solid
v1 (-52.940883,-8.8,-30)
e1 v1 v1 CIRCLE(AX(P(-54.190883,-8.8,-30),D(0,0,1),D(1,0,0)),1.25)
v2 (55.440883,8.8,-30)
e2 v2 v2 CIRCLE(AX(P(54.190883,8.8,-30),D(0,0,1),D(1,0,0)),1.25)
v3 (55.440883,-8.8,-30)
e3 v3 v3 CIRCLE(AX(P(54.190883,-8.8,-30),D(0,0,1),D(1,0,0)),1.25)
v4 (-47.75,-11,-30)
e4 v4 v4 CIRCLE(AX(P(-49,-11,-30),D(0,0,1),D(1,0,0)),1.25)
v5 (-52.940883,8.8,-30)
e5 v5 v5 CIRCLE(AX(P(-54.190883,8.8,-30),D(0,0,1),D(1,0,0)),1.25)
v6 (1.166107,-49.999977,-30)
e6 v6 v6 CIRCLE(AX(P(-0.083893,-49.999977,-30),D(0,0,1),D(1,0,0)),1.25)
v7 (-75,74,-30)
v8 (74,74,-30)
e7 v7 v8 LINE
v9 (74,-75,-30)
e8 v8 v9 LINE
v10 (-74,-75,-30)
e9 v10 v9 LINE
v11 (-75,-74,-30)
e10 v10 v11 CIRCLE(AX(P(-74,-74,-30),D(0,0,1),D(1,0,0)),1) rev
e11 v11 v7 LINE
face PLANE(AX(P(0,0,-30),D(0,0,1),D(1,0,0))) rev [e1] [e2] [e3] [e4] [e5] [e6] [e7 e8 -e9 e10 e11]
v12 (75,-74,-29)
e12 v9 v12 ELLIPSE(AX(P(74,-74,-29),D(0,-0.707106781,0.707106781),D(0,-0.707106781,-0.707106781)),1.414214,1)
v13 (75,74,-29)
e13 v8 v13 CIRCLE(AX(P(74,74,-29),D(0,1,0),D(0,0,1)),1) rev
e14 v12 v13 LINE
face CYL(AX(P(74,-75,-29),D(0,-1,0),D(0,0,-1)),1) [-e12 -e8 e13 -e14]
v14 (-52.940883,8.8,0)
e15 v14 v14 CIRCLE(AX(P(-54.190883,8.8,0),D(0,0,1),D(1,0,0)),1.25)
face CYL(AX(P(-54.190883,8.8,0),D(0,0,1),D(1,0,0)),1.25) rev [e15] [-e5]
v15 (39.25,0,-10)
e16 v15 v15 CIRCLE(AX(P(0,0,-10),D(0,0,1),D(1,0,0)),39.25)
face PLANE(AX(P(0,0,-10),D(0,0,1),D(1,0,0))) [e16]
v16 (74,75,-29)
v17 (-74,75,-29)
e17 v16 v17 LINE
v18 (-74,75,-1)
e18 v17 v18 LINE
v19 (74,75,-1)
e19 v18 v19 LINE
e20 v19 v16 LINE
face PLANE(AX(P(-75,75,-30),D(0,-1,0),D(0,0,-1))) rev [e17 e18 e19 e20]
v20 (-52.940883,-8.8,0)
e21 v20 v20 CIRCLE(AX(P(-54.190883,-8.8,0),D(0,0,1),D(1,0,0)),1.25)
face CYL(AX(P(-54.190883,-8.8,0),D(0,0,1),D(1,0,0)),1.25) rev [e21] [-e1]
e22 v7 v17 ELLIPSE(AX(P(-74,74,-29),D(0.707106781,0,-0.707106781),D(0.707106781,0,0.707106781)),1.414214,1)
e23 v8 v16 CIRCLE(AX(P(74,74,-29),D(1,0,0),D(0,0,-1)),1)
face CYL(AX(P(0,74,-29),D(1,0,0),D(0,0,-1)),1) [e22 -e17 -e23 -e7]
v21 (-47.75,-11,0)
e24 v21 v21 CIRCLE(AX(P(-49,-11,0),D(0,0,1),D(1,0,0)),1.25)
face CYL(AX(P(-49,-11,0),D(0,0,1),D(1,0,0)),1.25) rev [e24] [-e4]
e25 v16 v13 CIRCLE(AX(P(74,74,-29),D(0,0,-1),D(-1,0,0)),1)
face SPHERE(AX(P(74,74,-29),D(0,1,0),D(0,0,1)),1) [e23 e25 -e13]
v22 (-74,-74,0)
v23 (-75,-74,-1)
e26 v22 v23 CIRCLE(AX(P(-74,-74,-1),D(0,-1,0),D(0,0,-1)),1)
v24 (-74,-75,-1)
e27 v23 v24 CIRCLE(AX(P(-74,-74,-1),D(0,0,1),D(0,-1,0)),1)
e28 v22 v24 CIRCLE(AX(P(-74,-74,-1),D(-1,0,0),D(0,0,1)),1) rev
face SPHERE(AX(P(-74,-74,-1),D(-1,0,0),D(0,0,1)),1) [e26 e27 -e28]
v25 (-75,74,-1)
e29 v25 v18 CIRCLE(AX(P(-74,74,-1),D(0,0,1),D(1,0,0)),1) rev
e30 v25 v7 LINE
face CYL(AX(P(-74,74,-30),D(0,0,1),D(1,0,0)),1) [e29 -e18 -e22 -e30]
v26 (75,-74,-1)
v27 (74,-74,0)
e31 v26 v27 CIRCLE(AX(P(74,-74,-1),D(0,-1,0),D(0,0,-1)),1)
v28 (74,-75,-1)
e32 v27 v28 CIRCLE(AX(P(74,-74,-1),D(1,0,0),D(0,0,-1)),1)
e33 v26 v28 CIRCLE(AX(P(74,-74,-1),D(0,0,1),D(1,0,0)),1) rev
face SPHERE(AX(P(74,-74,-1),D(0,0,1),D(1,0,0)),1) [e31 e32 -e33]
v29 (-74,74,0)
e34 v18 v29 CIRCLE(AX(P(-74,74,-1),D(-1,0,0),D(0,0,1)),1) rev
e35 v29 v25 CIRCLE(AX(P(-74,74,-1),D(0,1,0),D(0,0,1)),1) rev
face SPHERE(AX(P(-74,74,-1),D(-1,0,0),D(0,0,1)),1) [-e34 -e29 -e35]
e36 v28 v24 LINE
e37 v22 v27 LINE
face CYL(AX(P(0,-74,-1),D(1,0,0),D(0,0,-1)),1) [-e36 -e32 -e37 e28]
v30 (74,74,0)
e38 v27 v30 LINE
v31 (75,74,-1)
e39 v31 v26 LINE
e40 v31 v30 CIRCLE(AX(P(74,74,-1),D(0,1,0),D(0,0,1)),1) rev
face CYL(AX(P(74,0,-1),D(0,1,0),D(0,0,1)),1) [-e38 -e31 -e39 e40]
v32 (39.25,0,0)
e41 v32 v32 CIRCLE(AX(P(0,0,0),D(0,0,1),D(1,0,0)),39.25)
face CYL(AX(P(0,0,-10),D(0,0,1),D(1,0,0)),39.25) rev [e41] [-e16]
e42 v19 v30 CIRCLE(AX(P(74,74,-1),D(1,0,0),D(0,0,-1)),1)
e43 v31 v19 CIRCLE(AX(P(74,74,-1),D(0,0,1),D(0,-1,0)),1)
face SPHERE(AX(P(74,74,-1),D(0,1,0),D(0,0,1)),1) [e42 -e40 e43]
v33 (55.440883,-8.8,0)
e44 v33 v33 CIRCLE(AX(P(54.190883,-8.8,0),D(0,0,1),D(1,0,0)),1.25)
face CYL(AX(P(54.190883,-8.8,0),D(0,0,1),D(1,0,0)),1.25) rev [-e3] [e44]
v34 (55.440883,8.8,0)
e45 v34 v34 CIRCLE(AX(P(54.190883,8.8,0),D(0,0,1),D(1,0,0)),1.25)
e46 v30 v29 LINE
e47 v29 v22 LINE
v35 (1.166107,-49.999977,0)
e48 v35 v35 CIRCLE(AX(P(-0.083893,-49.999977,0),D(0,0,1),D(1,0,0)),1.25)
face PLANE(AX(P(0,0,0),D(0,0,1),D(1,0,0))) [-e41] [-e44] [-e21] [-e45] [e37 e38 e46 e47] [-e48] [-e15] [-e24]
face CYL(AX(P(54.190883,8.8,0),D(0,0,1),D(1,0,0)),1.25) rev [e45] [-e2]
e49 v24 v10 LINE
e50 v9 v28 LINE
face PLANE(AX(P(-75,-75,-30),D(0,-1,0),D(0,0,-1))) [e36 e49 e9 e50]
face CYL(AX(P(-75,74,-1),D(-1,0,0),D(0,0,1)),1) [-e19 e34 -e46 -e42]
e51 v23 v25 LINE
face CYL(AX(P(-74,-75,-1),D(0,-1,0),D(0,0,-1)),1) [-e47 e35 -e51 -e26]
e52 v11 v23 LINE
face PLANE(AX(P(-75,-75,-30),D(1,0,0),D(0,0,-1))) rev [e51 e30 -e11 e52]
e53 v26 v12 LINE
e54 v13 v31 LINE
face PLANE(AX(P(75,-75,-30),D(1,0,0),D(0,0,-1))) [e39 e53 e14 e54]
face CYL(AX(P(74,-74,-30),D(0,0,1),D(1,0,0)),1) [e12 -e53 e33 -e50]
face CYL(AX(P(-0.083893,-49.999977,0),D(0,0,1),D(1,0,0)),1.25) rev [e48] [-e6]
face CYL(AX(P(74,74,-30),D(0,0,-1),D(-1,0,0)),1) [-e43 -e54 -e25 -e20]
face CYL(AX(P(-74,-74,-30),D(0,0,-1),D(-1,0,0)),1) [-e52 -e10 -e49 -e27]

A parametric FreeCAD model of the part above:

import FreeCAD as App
import Part
import Sketcher

V = App.Vector
Q = App.Units.Quantity


def edges_at(feature, points):
    """Names of the edges that pass closest to the given points."""
    edges = feature.Shape.Edges
    near = lambda p: min(range(len(edges)), key=lambda i: edges[i].distToShape(Part.Vertex(*p))[0])
    return sorted({f"Edge{near(p) + 1}" for p in points})


def add_polygon(sketch, points):
    """Adds a closed chain of lines whose ends are joined by coincident constraints."""
    first, n = sketch.GeometryCount, len(points)
    for a, b in zip(points, points[1:] + points[:1]):
        sketch.addGeometry(Part.LineSegment(App.Vector(*a, 0), App.Vector(*b, 0)), False)
    for i in range(n):
        sketch.addConstraint(Sketcher.Constraint("Coincident", first + i, 2, first + (i + 1) % n, 1))

doc = App.newDocument("Part")
body = doc.addObject("PartDesign::Body", "Body")

# Sketch on XY plane
sketch1 = body.newObject("Sketcher::SketchObject", "Sketch")
sketch1.AttachmentSupport = (doc.getObject("XY_Plane"), [""])
sketch1.MapMode = "FlatFace"
add_polygon(sketch1, [(-75, 75), (-75, -75), (75, -75), (75, 75)])  # lines 0-3
sketch1.addConstraint([
    Sketcher.Constraint("Vertical", 0),
    Sketcher.Constraint("Horizontal", 1),
    Sketcher.Constraint("Vertical", 2),
    Sketcher.Constraint("Horizontal", 3),
    Sketcher.Constraint("Symmetric", 0, 2, 2, 2, -1, 1),
    Sketcher.Constraint("Equal", 3, 0),
    Sketcher.Constraint("DistanceX", 1, 1, 1, 2, Q("150 mm")),
])
pad1 = body.newObject("PartDesign::Pad", "Pad")
pad1.Profile = sketch1
pad1.Length = 30
pad1.Reversed = True
doc.recompute()

fillet = body.newObject("PartDesign::Fillet", "Fillet")
fillet.Base = (pad1, edges_at(pad1, [
    (0, 75, -30),
    (-75, 0, 0),
    (0, 75, 0),
    (75, 0, 0),
    (0, -75, 0),
    (-75, -75, -15),
    (-75, 75, -15),
    (75, 75, -15),
    (75, -75, -15),
    (75, 0, -30),
]))
fillet.Radius = 1

# Sketch on XY plane
sketch2 = body.newObject("Sketcher::SketchObject", "Sketch001")
sketch2.AttachmentSupport = (doc.getObject("XY_Plane"), [""])
sketch2.MapMode = "FlatFace"
sketch2.addGeometry(Part.Circle(V(0, 0, 0), V(0, 0, 1), 39), False)
sketch2.addConstraint([
    Sketcher.Constraint("Coincident", 0, 3, -1, 1),
    Sketcher.Constraint("Diameter", 0, Q("78.5 mm")),
])
pocket1 = body.newObject("PartDesign::Pocket", "Pocket")
pocket1.Profile = sketch2
pocket1.Length = 10

# Sketch on XY plane
sketch3 = body.newObject("Sketcher::SketchObject", "Sketch002")
sketch3.AttachmentSupport = (doc.getObject("XY_Plane"), [""])
sketch3.MapMode = "FlatFace"
sketch3.addGeometry([
    Part.Circle(V(-54.2, -8.8, 0), V(0, 0, 1), 1.2),
    Part.Circle(V(-54.2, 8.8, 0), V(0, 0, 1), 1.2),
    Part.Circle(V(54.2, -8.8, 0), V(0, 0, 1), 1.2),
    Part.Circle(V(54.2, 8.8, 0), V(0, 0, 1), 1.2),
], False)
sketch3.addConstraint([
    Sketcher.Constraint("Equal", 0, 1),
    Sketcher.Constraint("Equal", 1, 2),
    Sketcher.Constraint("Equal", 2, 3),
    Sketcher.Constraint("Symmetric", 1, 3, 2, 3, -1, 1),
    Sketcher.Constraint("Symmetric", 0, 3, 3, 3, -1, 1),
    Sketcher.Constraint("Symmetric", 0, 3, 2, 3, -2),
    Sketcher.Constraint("Diameter", 0, Q("2.5 mm")),
    Sketcher.Constraint("DistanceY", 0, 3, -1, 1, Q("8.8 mm")),
    Sketcher.Constraint("DistanceX", 0, 3, -1, 1, Q("54.190883 mm")),
])
doc.recompute()
hole = body.newObject("PartDesign::Hole", "Hole")
hole.Profile = sketch3
hole.ThreadType = "None"
hole.Diameter = 2.5
hole.DepthType = "ThroughAll"

# Sketch on XY plane
sketch4 = body.newObject("Sketcher::SketchObject", "Sketch003")
sketch4.AttachmentSupport = (doc.getObject("XY_Plane"), [""])
sketch4.MapMode = "FlatFace"
sketch4.addGeometry(Part.Circle(V(-49, -11, 0), V(0, 0, 1), 1.2), False)
sketch4.addConstraint([
    Sketcher.Constraint("Diameter", 0, Q("2.5 mm")),
    Sketcher.Constraint("DistanceX", 0, 3, -1, 1, Q("49 mm")),
    Sketcher.Constraint("DistanceY", 0, 3, -1, 1, Q("11 mm")),
])
doc.recompute()
hole2 = body.newObject("PartDesign::Hole", "Hole001")
hole2.Profile = sketch4
hole2.ThreadType = "None"
hole2.Diameter = 2.5
hole2.DepthType = "ThroughAll"

# Sketch on XY plane
sketch5 = body.newObject("Sketcher::SketchObject", "Sketch004")
sketch5.AttachmentSupport = (doc.getObject("XY_Plane"), [""])
sketch5.MapMode = "FlatFace"
sketch5.addGeometry(Part.Circle(V(-0.1, -50, 0), V(0, 0, 1), 1.2), False)
sketch5.addConstraint([
    Sketcher.Constraint("Diameter", 0, Q("2.5 mm")),
    Sketcher.Constraint("DistanceX", 0, 3, -1, 1, Q("0.083893 mm")),
    Sketcher.Constraint("DistanceY", 0, 3, -1, 1, Q("49.999977 mm")),
])
doc.recompute()
hole3 = body.newObject("PartDesign::Hole", "Hole002")
hole3.Profile = sketch5
hole3.ThreadType = "None"
hole3.Diameter = 2.5
hole3.DepthType = "ThroughAll"

doc.recompute()
